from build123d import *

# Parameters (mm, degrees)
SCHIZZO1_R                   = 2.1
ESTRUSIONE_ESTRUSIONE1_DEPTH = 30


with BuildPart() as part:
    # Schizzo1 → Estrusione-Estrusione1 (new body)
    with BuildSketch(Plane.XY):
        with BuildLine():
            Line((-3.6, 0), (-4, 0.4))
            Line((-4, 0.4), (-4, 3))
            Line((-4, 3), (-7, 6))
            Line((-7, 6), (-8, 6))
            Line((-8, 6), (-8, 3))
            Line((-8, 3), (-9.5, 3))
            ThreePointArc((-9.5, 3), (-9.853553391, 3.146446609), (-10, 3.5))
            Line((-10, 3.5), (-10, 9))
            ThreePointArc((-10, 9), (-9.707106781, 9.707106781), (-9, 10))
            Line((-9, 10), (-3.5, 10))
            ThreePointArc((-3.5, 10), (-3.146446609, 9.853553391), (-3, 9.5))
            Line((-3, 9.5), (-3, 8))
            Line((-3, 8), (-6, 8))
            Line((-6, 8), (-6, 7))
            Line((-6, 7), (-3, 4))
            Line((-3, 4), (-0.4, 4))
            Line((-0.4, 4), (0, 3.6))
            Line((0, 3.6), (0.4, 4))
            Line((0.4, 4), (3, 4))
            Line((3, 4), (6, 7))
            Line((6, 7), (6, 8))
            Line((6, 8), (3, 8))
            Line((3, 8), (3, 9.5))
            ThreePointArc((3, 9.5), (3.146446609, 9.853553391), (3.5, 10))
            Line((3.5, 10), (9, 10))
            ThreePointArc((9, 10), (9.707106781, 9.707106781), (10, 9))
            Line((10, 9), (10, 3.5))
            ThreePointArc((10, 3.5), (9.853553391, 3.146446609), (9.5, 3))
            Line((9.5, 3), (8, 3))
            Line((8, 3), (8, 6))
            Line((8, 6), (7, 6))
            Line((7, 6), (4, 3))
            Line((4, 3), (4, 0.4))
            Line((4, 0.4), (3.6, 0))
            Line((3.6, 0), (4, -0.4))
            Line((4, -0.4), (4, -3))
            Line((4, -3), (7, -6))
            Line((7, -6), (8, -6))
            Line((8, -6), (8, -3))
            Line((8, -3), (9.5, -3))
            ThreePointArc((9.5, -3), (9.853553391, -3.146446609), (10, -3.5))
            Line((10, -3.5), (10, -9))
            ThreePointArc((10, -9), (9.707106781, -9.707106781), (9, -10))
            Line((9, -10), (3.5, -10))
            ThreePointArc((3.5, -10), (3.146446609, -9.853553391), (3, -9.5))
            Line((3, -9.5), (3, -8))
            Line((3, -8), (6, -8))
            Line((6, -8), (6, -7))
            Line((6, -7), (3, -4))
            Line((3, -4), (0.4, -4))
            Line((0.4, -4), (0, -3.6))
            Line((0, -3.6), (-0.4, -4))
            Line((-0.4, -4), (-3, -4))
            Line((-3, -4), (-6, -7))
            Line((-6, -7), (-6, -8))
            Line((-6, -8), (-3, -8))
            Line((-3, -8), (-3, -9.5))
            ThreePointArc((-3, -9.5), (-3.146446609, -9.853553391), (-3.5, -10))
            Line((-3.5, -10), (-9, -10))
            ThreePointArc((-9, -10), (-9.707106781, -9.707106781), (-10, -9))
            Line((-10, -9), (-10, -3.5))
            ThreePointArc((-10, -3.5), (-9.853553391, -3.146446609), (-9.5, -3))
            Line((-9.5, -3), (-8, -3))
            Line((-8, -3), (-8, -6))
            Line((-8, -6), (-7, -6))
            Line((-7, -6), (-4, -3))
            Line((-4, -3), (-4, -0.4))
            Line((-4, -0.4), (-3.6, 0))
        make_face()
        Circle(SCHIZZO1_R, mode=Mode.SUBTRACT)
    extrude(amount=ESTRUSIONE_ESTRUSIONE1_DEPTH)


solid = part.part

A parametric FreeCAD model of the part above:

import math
import FreeCAD as App
import Part
import Sketcher

V = App.Vector
Q = App.Units.Quantity

doc = App.newDocument("Part")
body = doc.addObject("PartDesign::Body", "Body")

# Sketch on XY plane
sketch1 = body.newObject("Sketcher::SketchObject", "Sketch")
sketch1.AttachmentSupport = (doc.getObject("XY_Plane"), [""])
sketch1.MapMode = "FlatFace"
sketch1.addGeometry([
    Part.LineSegment(V(-4, 0.4, 0), V(-3.6, 0, 0)),  # 0
    Part.LineSegment(V(-3.6, 0, 0), V(-4, -0.4, 0)),  # 1
    Part.LineSegment(V(-4, -0.4, 0), V(-4, -3, 0)),  # 2
    Part.LineSegment(V(-4, -3, 0), V(-7, -6, 0)),  # 3
    Part.LineSegment(V(-7, -6, 0), V(-8, -6, 0)),  # 4
    Part.LineSegment(V(-8, -6, 0), V(-8, -3, 0)),  # 5
    Part.LineSegment(V(-8, -3, 0), V(-9.5, -3, 0)),  # 6
    Part.ArcOfCircle(Part.Circle(V(-9.5, -3.5, 0), V(0, 0, 1), 0.5), math.radians(90), math.radians(180)),  # 7
    Part.LineSegment(V(-10, -3.5, 0), V(-10, -9, 0)),  # 8
    Part.ArcOfCircle(Part.Circle(V(-9, -9, 0), V(0, 0, 1), 1), math.radians(-180), math.radians(-90)),  # 9
    Part.LineSegment(V(-9, -10, 0), V(-3.5, -10, 0)),  # 10
    Part.ArcOfCircle(Part.Circle(V(-3.5, -9.5, 0), V(0, 0, 1), 0.5), math.radians(-90), math.radians(0)),  # 11
    Part.LineSegment(V(-3, -9.5, 0), V(-3, -8, 0)),  # 12
    Part.LineSegment(V(-3, -8, 0), V(-6, -8, 0)),  # 13
    Part.LineSegment(V(-6, -8, 0), V(-6, -7, 0)),  # 14
    Part.LineSegment(V(-6, -7, 0), V(-3, -4, 0)),  # 15
    Part.LineSegment(V(-3, -4, 0), V(-0.4, -4, 0)),  # 16
    Part.LineSegment(V(-0.4, -4, 0), V(0, -3.6, 0)),  # 17
    Part.LineSegment(V(0, -3.6, 0), V(0.4, -4, 0)),  # 18
    Part.LineSegment(V(0.4, -4, 0), V(3, -4, 0)),  # 19
    Part.LineSegment(V(3, -4, 0), V(6, -7, 0)),  # 20
    Part.LineSegment(V(6, -7, 0), V(6, -8, 0)),  # 21
    Part.LineSegment(V(6, -8, 0), V(3, -8, 0)),  # 22
    Part.LineSegment(V(3, -8, 0), V(3, -9.5, 0)),  # 23
    Part.ArcOfCircle(Part.Circle(V(3.5, -9.5, 0), V(0, 0, 1), 0.5), math.radians(180), math.radians(270)),  # 24
    Part.LineSegment(V(3.5, -10, 0), V(9, -10, 0)),  # 25
    Part.ArcOfCircle(Part.Circle(V(9, -9, 0), V(0, 0, 1), 1), math.radians(-90), math.radians(0)),  # 26
    Part.LineSegment(V(10, -9, 0), V(10, -3.5, 0)),  # 27
    Part.ArcOfCircle(Part.Circle(V(9.5, -3.5, 0), V(0, 0, 1), 0.5), math.radians(0), math.radians(90)),  # 28
    Part.LineSegment(V(9.5, -3, 0), V(8, -3, 0)),  # 29
    Part.LineSegment(V(8, -3, 0), V(8, -6, 0)),  # 30
    Part.LineSegment(V(8, -6, 0), V(7, -6, 0)),  # 31
    Part.LineSegment(V(7, -6, 0), V(4, -3, 0)),  # 32
    Part.LineSegment(V(4, -3, 0), V(4, -0.4, 0)),  # 33
    Part.LineSegment(V(4, -0.4, 0), V(3.6, 0, 0)),  # 34
    Part.LineSegment(V(3.6, 0, 0), V(4, 0.4, 0)),  # 35
    Part.LineSegment(V(4, 0.4, 0), V(4, 3, 0)),  # 36
    Part.LineSegment(V(4, 3, 0), V(7, 6, 0)),  # 37
    Part.LineSegment(V(7, 6, 0), V(8, 6, 0)),  # 38
    Part.LineSegment(V(8, 6, 0), V(8, 3, 0)),  # 39
    Part.LineSegment(V(8, 3, 0), V(9.5, 3, 0)),  # 40
    Part.ArcOfCircle(Part.Circle(V(9.5, 3.5, 0), V(0, 0, 1), 0.5), math.radians(-90), math.radians(0)),  # 41
    Part.LineSegment(V(10, 3.5, 0), V(10, 9, 0)),  # 42
    Part.ArcOfCircle(Part.Circle(V(9, 9, 0), V(0, 0, 1), 1), math.radians(0), math.radians(90)),  # 43
    Part.LineSegment(V(9, 10, 0), V(3.5, 10, 0)),  # 44
    Part.ArcOfCircle(Part.Circle(V(3.5, 9.5, 0), V(0, 0, 1), 0.5), math.radians(90), math.radians(180)),  # 45
    Part.LineSegment(V(3, 9.5, 0), V(3, 8, 0)),  # 46
    Part.LineSegment(V(3, 8, 0), V(6, 8, 0)),  # 47
    Part.LineSegment(V(6, 8, 0), V(6, 7, 0)),  # 48
    Part.LineSegment(V(6, 7, 0), V(3, 4, 0)),  # 49
    Part.LineSegment(V(3, 4, 0), V(0.4, 4, 0)),  # 50
    Part.LineSegment(V(0.4, 4, 0), V(0, 3.6, 0)),  # 51
    Part.LineSegment(V(0, 3.6, 0), V(-0.4, 4, 0)),  # 52
    Part.LineSegment(V(-0.4, 4, 0), V(-3, 4, 0)),  # 53
    Part.LineSegment(V(-3, 4, 0), V(-6, 7, 0)),  # 54
    Part.LineSegment(V(-6, 7, 0), V(-6, 8, 0)),  # 55
    Part.LineSegment(V(-6, 8, 0), V(-3, 8, 0)),  # 56
    Part.LineSegment(V(-3, 8, 0), V(-3, 9.5, 0)),  # 57
    Part.ArcOfCircle(Part.Circle(V(-3.5, 9.5, 0), V(0, 0, 1), 0.5), math.radians(0), math.radians(90)),  # 58
    Part.LineSegment(V(-3.5, 10, 0), V(-9, 10, 0)),  # 59
    Part.ArcOfCircle(Part.Circle(V(-9, 9, 0), V(0, 0, 1), 1), math.radians(90), math.radians(180)),  # 60
    Part.LineSegment(V(-10, 9, 0), V(-10, 3.5, 0)),  # 61
    Part.ArcOfCircle(Part.Circle(V(-9.5, 3.5, 0), V(0, 0, 1), 0.5), math.radians(180), math.radians(270)),  # 62
    Part.LineSegment(V(-9.5, 3, 0), V(-8, 3, 0)),  # 63
    Part.LineSegment(V(-8, 3, 0), V(-8, 6, 0)),  # 64
    Part.LineSegment(V(-8, 6, 0), V(-7, 6, 0)),  # 65
    Part.LineSegment(V(-7, 6, 0), V(-4, 3, 0)),  # 66
    Part.LineSegment(V(-4, 3, 0), V(-4, 0.4, 0)),  # 67
    Part.Circle(V(0, 0, 0), V(0, 0, 1), 2.1),  # 68
], False)
sketch1.addConstraint([
    Sketcher.Constraint("Coincident", 0, 2, 1, 1),
    Sketcher.Constraint("Coincident", 1, 2, 2, 1),
    Sketcher.Constraint("Coincident", 2, 2, 3, 1),
    Sketcher.Constraint("Coincident", 3, 2, 4, 1),
    Sketcher.Constraint("Coincident", 4, 2, 5, 1),
    Sketcher.Constraint("Coincident", 5, 2, 6, 1),
    Sketcher.Constraint("Tangent", 6, 2, 7, 1),
    Sketcher.Constraint("Tangent", 7, 2, 8, 1),
    Sketcher.Constraint("Tangent", 8, 2, 9, 1),
    Sketcher.Constraint("Tangent", 9, 2, 10, 1),
    Sketcher.Constraint("Tangent", 10, 2, 11, 1),
    Sketcher.Constraint("Tangent", 11, 2, 12, 1),
    Sketcher.Constraint("Coincident", 12, 2, 13, 1),
    Sketcher.Constraint("Coincident", 13, 2, 14, 1),
    Sketcher.Constraint("Coincident", 14, 2, 15, 1),
    Sketcher.Constraint("Coincident", 15, 2, 16, 1),
    Sketcher.Constraint("Coincident", 16, 2, 17, 1),
    Sketcher.Constraint("Coincident", 17, 2, 18, 1),
    Sketcher.Constraint("Coincident", 18, 2, 19, 1),
    Sketcher.Constraint("Coincident", 19, 2, 20, 1),
    Sketcher.Constraint("Coincident", 20, 2, 21, 1),
    Sketcher.Constraint("Coincident", 21, 2, 22, 1),
    Sketcher.Constraint("Coincident", 22, 2, 23, 1),
    Sketcher.Constraint("Tangent", 23, 2, 24, 1),
    Sketcher.Constraint("Tangent", 24, 2, 25, 1),
    Sketcher.Constraint("Tangent", 25, 2, 26, 1),
    Sketcher.Constraint("Tangent", 26, 2, 27, 1),
    Sketcher.Constraint("Tangent", 27, 2, 28, 1),
    Sketcher.Constraint("Tangent", 28, 2, 29, 1),
    Sketcher.Constraint("Coincident", 29, 2, 30, 1),
    Sketcher.Constraint("Coincident", 30, 2, 31, 1),
    Sketcher.Constraint("Coincident", 31, 2, 32, 1),
    Sketcher.Constraint("Coincident", 32, 2, 33, 1),
    Sketcher.Constraint("Coincident", 33, 2, 34, 1),
    Sketcher.Constraint("Coincident", 34, 2, 35, 1),
    Sketcher.Constraint("Coincident", 35, 2, 36, 1),
    Sketcher.Constraint("Coincident", 36, 2, 37, 1),
    Sketcher.Constraint("Coincident", 37, 2, 38, 1),
    Sketcher.Constraint("Coincident", 38, 2, 39, 1),
    Sketcher.Constraint("Coincident", 39, 2, 40, 1),
    Sketcher.Constraint("Tangent", 40, 2, 41, 1),
    Sketcher.Constraint("Tangent", 41, 2, 42, 1),
    Sketcher.Constraint("Tangent", 42, 2, 43, 1),
    Sketcher.Constraint("Tangent", 43, 2, 44, 1),
    Sketcher.Constraint("Tangent", 44, 2, 45, 1),
    Sketcher.Constraint("Tangent", 45, 2, 46, 1),
    Sketcher.Constraint("Coincident", 46, 2, 47, 1),
    Sketcher.Constraint("Coincident", 47, 2, 48, 1),
    Sketcher.Constraint("Coincident", 48, 2, 49, 1),
    Sketcher.Constraint("Coincident", 49, 2, 50, 1),
    Sketcher.Constraint("Coincident", 50, 2, 51, 1),
    Sketcher.Constraint("Coincident", 51, 2, 52, 1),
    Sketcher.Constraint("Coincident", 52, 2, 53, 1),
    Sketcher.Constraint("Coincident", 53, 2, 54, 1),
    Sketcher.Constraint("Coincident", 54, 2, 55, 1),
    Sketcher.Constraint("Coincident", 55, 2, 56, 1),
    Sketcher.Constraint("Coincident", 56, 2, 57, 1),
    Sketcher.Constraint("Tangent", 57, 2, 58, 1),
    Sketcher.Constraint("Tangent", 58, 2, 59, 1),
    Sketcher.Constraint("Tangent", 59, 2, 60, 1),
    Sketcher.Constraint("Tangent", 60, 2, 61, 1),
    Sketcher.Constraint("Tangent", 61, 2, 62, 1),
    Sketcher.Constraint("Tangent", 62, 2, 63, 1),
    Sketcher.Constraint("Coincident", 63, 2, 64, 1),
    Sketcher.Constraint("Coincident", 64, 2, 65, 1),
    Sketcher.Constraint("Coincident", 65, 2, 66, 1),
    Sketcher.Constraint("Coincident", 66, 2, 67, 1),
    Sketcher.Constraint("Coincident", 67, 2, 0, 1),
    Sketcher.Constraint("Vertical", 2),
    Sketcher.Constraint("Horizontal", 4),
    Sketcher.Constraint("Vertical", 5),
    Sketcher.Constraint("Horizontal", 6),
    Sketcher.Constraint("Vertical", 8),
    Sketcher.Constraint("Horizontal", 10),
    Sketcher.Constraint("Vertical", 12),
    Sketcher.Constraint("Horizontal", 13),
    Sketcher.Constraint("Vertical", 14),
    Sketcher.Constraint("Horizontal", 16),
    Sketcher.Constraint("Horizontal", 19),
    Sketcher.Constraint("Vertical", 21),
    Sketcher.Constraint("Horizontal", 22),
    Sketcher.Constraint("Vertical", 23),
    Sketcher.Constraint("Horizontal", 25),
    Sketcher.Constraint("Vertical", 27),
    Sketcher.Constraint("Horizontal", 29),
    Sketcher.Constraint("Vertical", 30),
    Sketcher.Constraint("Horizontal", 31),
    Sketcher.Constraint("Vertical", 33),
    Sketcher.Constraint("Vertical", 36),
    Sketcher.Constraint("Horizontal", 38),
    Sketcher.Constraint("Vertical", 39),
    Sketcher.Constraint("Horizontal", 40),
    Sketcher.Constraint("Vertical", 42),
    Sketcher.Constraint("Horizontal", 44),
    Sketcher.Constraint("Vertical", 46),
    Sketcher.Constraint("Horizontal", 47),
    Sketcher.Constraint("Vertical", 48),
    Sketcher.Constraint("Horizontal", 50),
    Sketcher.Constraint("Horizontal", 53),
    Sketcher.Constraint("Vertical", 55),
    Sketcher.Constraint("Horizontal", 56),
    Sketcher.Constraint("Vertical", 57),
    Sketcher.Constraint("Horizontal", 59),
    Sketcher.Constraint("Vertical", 61),
    Sketcher.Constraint("Horizontal", 63),
    Sketcher.Constraint("Vertical", 64),
    Sketcher.Constraint("Horizontal", 65),
    Sketcher.Constraint("Vertical", 67),
    Sketcher.Constraint("Coincident", 68, 3, -1, 1),
    Sketcher.Constraint("Equal", 7, 11),
    Sketcher.Constraint("Equal", 11, 24),
    Sketcher.Constraint("Equal", 9, 26),
    Sketcher.Constraint("Equal", 24, 28),
    Sketcher.Constraint("Equal", 28, 41),
    Sketcher.Constraint("Equal", 26, 43),
    Sketcher.Constraint("Equal", 41, 45),
    Sketcher.Constraint("Equal", 45, 58),
    Sketcher.Constraint("Equal", 43, 60),
    Sketcher.Constraint("Equal", 58, 62),
    Sketcher.Constraint("Symmetric", 7, 3, 41, 3, -1, 1),
    Sketcher.Constraint("Symmetric", 11, 3, 45, 3, -1, 1),
    Sketcher.Constraint("Symmetric", 24, 3, 58, 3, -1, 1),
    Sketcher.Constraint("Symmetric", 28, 3, 62, 3, -1, 1),
    Sketcher.Constraint("Symmetric", 0, 2, 34, 2, -1, 1),
    Sketcher.Constraint("Symmetric", 1, 2, 35, 2, -1, 1),
    Sketcher.Constraint("Symmetric", 3, 2, 37, 2, -1, 1),
    Sketcher.Constraint("Symmetric", 13, 2, 47, 2, -1, 1),
    Sketcher.Constraint("Symmetric", 15, 2, 49, 2, -1, 1),
    Sketcher.Constraint("Symmetric", 17, 2, 51, 2, -1, 1),
    Sketcher.Constraint("Symmetric", 18, 2, 52, 2, -1, 1),
    Sketcher.Constraint("Symmetric", 20, 2, 54, 2, -1, 1),
    Sketcher.Constraint("Symmetric", 30, 2, 64, 2, -1, 1),
    Sketcher.Constraint("Symmetric", 32, 2, 66, 2, -1, 1),
    Sketcher.Constraint("Symmetric", 11, 3, 24, 3, -2),
    Sketcher.Constraint("Symmetric", 7, 3, 28, 3, -2),
    Sketcher.Constraint("Symmetric", 16, 2, 18, 2, -2),
    Sketcher.Constraint("Symmetric", 14, 2, 20, 2, -2),
    Sketcher.Constraint("Symmetric", 4, 2, 30, 2, -2),
    Sketcher.Constraint("Symmetric", 2, 2, 32, 2, -2),
    Sketcher.Constraint("PointOnObject", 0, 2, -1),
    Sketcher.Constraint("PointOnObject", 17, 2, -2),
    Sketcher.Constraint("Perpendicular", 0, 1),
    Sketcher.Constraint("Parallel", 1, 3),
    Sketcher.Constraint("Parallel", 3, 15),
    Sketcher.Constraint("Parallel", 15, 17),
    Sketcher.Constraint("Perpendicular", 17, 18),
    Sketcher.Constraint("Parallel", 18, 20),
    Sketcher.Constraint("Parallel", 20, 32),
    Sketcher.Constraint("Parallel", 32, 34),
    Sketcher.Constraint("Parallel", 35, 37),
    Sketcher.Constraint("Parallel", 37, 49),
    Sketcher.Constraint("Parallel", 49, 51),
    Sketcher.Constraint("Parallel", 52, 54),
    Sketcher.Constraint("Parallel", 54, 66),
    Sketcher.Constraint("Horizontal", 2, 2, 5, 2),
    Sketcher.Constraint("Horizontal", 13, 2, 21, 2),
    Sketcher.Constraint("Horizontal", 47, 2, 55, 2),
    Sketcher.Constraint("Vertical", 12, 2, 15, 2),
    Sketcher.Constraint("Vertical", 30, 2, 38, 2),
    Sketcher.Constraint("Equal", 53, 2),
    Sketcher.Constraint("Equal", 56, 5),
    Sketcher.Constraint("Equal", 59, 8),
    Sketcher.Constraint("Equal", 63, 12),
    Sketcher.Constraint("Equal", 65, 14),
    Sketcher.Constraint("Equal", 1, 17),
    Sketcher.Constraint("Radius", 9, Q("1 mm")),
    Sketcher.Constraint("Diameter", 68, Q("4.2 mm")),
    Sketcher.Constraint("Radius", 7, Q("0.5 mm")),
    Sketcher.Constraint("DistanceX", 4, 2, 4, 1, Q("1 mm")),
    Sketcher.Constraint("DistanceX", 13, 2, 13, 1, Q("3 mm")),
    Sketcher.Constraint("DistanceX", 6, 2, 6, 1, Q("1.5 mm")),
    Sketcher.Constraint("DistanceX", 10, 1, 10, 2, Q("5.5 mm")),
    Sketcher.Constraint("DistanceX", 16, 1, 16, 2, Q("2.6 mm")),
    Sketcher.Constraint("DistanceX", 9, 3, -1, 1, Q("9 mm")),
])
pad1 = body.newObject("PartDesign::Pad", "Pad")
pad1.Profile = sketch1
pad1.Length = 30

doc.recompute()
